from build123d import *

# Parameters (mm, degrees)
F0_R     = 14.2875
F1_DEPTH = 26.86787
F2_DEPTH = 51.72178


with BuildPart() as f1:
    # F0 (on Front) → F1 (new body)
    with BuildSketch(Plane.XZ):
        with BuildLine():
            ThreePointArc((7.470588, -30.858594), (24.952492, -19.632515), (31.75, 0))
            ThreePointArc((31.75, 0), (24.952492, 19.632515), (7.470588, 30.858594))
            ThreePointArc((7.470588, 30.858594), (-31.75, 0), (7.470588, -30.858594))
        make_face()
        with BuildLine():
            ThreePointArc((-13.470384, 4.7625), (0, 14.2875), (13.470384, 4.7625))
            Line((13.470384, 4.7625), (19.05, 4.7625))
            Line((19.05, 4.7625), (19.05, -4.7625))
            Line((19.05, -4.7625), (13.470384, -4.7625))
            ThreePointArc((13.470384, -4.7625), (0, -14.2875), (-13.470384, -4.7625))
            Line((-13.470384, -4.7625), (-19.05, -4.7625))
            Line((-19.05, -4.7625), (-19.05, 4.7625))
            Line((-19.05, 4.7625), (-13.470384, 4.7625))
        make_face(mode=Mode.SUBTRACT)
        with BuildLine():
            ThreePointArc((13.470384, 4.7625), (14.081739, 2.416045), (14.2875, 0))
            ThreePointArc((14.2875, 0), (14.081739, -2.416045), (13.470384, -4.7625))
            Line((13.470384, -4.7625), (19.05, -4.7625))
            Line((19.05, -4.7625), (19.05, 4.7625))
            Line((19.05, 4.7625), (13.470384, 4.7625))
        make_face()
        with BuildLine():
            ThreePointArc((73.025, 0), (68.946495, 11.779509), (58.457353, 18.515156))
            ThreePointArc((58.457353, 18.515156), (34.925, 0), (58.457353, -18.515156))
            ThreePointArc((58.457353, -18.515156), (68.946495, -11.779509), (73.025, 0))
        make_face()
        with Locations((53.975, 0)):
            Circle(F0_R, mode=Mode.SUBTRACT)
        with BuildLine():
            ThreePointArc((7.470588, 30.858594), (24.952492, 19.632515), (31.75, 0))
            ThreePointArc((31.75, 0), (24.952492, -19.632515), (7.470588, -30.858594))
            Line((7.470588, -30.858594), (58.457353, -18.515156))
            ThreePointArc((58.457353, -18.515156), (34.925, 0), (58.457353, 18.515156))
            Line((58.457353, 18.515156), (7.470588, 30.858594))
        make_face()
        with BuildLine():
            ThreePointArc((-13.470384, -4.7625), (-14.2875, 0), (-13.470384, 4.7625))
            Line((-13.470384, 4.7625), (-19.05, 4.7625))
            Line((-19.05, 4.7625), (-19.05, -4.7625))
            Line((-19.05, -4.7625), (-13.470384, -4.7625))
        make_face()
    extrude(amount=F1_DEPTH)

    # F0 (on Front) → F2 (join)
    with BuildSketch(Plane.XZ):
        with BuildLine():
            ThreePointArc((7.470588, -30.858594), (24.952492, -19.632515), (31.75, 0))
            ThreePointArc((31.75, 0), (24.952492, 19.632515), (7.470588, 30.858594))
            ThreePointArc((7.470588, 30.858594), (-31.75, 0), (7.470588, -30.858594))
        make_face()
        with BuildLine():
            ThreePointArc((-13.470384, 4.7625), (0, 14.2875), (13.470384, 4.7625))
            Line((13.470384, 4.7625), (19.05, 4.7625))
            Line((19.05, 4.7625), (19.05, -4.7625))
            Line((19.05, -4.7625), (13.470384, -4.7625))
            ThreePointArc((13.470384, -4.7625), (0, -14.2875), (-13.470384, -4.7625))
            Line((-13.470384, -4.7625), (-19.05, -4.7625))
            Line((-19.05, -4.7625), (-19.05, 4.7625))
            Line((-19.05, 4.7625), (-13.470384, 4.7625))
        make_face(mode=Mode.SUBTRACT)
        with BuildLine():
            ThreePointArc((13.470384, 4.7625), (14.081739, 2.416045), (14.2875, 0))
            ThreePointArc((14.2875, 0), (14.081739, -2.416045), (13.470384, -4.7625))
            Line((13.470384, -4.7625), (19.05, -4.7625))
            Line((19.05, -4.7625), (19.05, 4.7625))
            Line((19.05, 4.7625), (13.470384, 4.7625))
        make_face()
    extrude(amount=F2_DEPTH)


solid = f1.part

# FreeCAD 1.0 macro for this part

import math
import FreeCAD as App
import Part
import Sketcher
from FreeCAD import Vector
Q = App.Units.Quantity

doc = App.newDocument("Part")
body = doc.addObject("PartDesign::Body", "Body")

# Sketch on XZ plane
sketch1 = body.newObject("Sketcher::SketchObject", "Sketch")
sketch1.AttachmentSupport = (doc.getObject("XZ_Plane"), [""])
sketch1.MapMode = "FlatFace"
sketch1.addGeometry([
    Part.ArcOfCircle(Part.Circle(Vector(0, 0, 0), Vector(0, 0, 1), 31.8), math.radians(76), math.radians(284)),  # 0
    Part.LineSegment(Vector(7.5, -30.9, 0), Vector(58.5, -18.5, 0)),  # 1
    Part.ArcOfCircle(Part.Circle(Vector(54, 0, 0), Vector(0, 0, 1), 19), math.radians(-76), math.radians(0)),  # 2
    Part.ArcOfCircle(Part.Circle(Vector(54, 0, 0), Vector(0, 0, 1), 19), math.radians(0), math.radians(76)),  # 3
    Part.LineSegment(Vector(58.5, 18.5, 0), Vector(7.5, 30.9, 0)),  # 4
    Part.ArcOfCircle(Part.Circle(Vector(0, 0, 0), Vector(0, 0, 1), 14.3), math.radians(19), math.radians(161)),  # 5
    Part.ArcOfCircle(Part.Circle(Vector(0, 0, 0), Vector(0, 0, 1), 14.3), math.radians(0), math.radians(19.47)),  # 6
    Part.ArcOfCircle(Part.Circle(Vector(0, 0, 0), Vector(0, 0, 1), 14.3), math.radians(-19.47), math.radians(0)),  # 7
    Part.ArcOfCircle(Part.Circle(Vector(0, 0, 0), Vector(0, 0, 1), 14.3), math.radians(-161), math.radians(-19)),  # 8
    Part.ArcOfCircle(Part.Circle(Vector(0, 0, 0), Vector(0, 0, 1), 14.3), math.radians(161), math.radians(199)),  # 9
    Part.Circle(Vector(54, 0, 0), Vector(0, 0, 1), 14.3),  # 10
], False)
sketch1.addConstraint([
    Sketcher.Constraint("Tangent", 0, 2, 1, 1),
    Sketcher.Constraint("Tangent", 1, 2, 2, 1),
    Sketcher.Constraint("Tangent", 2, 2, 3, 1),
    Sketcher.Constraint("Tangent", 3, 2, 4, 1),
    Sketcher.Constraint("Tangent", 4, 2, 0, 1),
    Sketcher.Constraint("Tangent", 5, 1, 6, 2),
    Sketcher.Constraint("Tangent", 6, 1, 7, 2),
    Sketcher.Constraint("Tangent", 7, 1, 8, 2),
    Sketcher.Constraint("Tangent", 8, 1, 9, 2),
    Sketcher.Constraint("Tangent", 9, 1, 5, 2),
    Sketcher.Constraint("Coincident", 0, 3, -1, 1),
    Sketcher.Constraint("Coincident", 5, 3, -1, 1),
    Sketcher.Constraint("Coincident", 8, 3, -1, 1),
    Sketcher.Constraint("Coincident", 10, 3, 2, 3),
    Sketcher.Constraint("Equal", 2, 3),
    Sketcher.Constraint("Equal", 8, 10),
    Sketcher.Constraint("PointOnObject", 2, 3, -1),
    Sketcher.Constraint("PointOnObject", 2, 2, -1),
    Sketcher.Constraint("PointOnObject", 6, 1, -1),
    Sketcher.Constraint("Horizontal", 7, 1, 8, 1),
    Sketcher.Constraint("Horizontal", 5, 1, 9, 1),
    Sketcher.Constraint("Vertical", 5, 1, 7, 1),
    Sketcher.Constraint("Radius", 0, Q("1.25 in")),
    Sketcher.Constraint("Radius", 2, Q("0.75 in")),
    Sketcher.Constraint("Diameter", 10, Q("1.125 in")),
    Sketcher.Constraint("DistanceX", -1, 1, 2, 3, Q("2.125 in")),
    Sketcher.Constraint("DistanceY", -1, 1, 5, 1, Q("0.1875 in")),
])
pad1 = body.newObject("PartDesign::Pad", "Pad")
pad1.Profile = sketch1
pad1.Length = 26.86787

# Sketch on XZ plane
sketch2 = body.newObject("Sketcher::SketchObject", "Sketch001")
sketch2.AttachmentSupport = (doc.getObject("XZ_Plane"), [""])
sketch2.MapMode = "FlatFace"
sketch2.addGeometry([
    Part.ArcOfCircle(Part.Circle(Vector(0, 0, 0), Vector(0, 0, 1), 31.8), math.radians(-76), math.radians(0)),  # 0
    Part.ArcOfCircle(Part.Circle(Vector(0, 0, 0), Vector(0, 0, 1), 31.8), math.radians(0), math.radians(76)),  # 1
    Part.ArcOfCircle(Part.Circle(Vector(0, 0, 0), Vector(0, 0, 1), 31.8), math.radians(76), math.radians(284)),  # 2
    Part.LineSegment(Vector(-19.1, 4.8, 0), Vector(-13.5, 4.8, 0)),  # 3
    Part.ArcOfCircle(Part.Circle(Vector(0, 0, 0), Vector(0, 0, 1), 14.3), math.radians(19), math.radians(161)),  # 4
    Part.ArcOfCircle(Part.Circle(Vector(0, 0, 0), Vector(0, 0, 1), 14.3), math.radians(0), math.radians(19.47)),  # 5
    Part.ArcOfCircle(Part.Circle(Vector(0, 0, 0), Vector(0, 0, 1), 14.3), math.radians(-19.47), math.radians(0)),  # 6
    Part.ArcOfCircle(Part.Circle(Vector(0, 0, 0), Vector(0, 0, 1), 14.3), math.radians(-161), math.radians(-19)),  # 7
    Part.LineSegment(Vector(-13.5, -4.8, 0), Vector(-19.1, -4.8, 0)),  # 8
    Part.LineSegment(Vector(-19.1, -4.8, 0), Vector(-19.1, 4.8, 0)),  # 9
], False)
sketch2.addConstraint([
    Sketcher.Constraint("Tangent", 0, 2, 1, 1),
    Sketcher.Constraint("Tangent", 1, 2, 2, 1),
    Sketcher.Constraint("Tangent", 2, 2, 0, 1),
    Sketcher.Constraint("Coincident", 3, 2, 4, 2),
    Sketcher.Constraint("Tangent", 4, 1, 5, 2),
    Sketcher.Constraint("Tangent", 5, 1, 6, 2),
    Sketcher.Constraint("Tangent", 6, 1, 7, 2),
    Sketcher.Constraint("Coincident", 7, 1, 8, 1),
    Sketcher.Constraint("Coincident", 8, 2, 9, 1),
    Sketcher.Constraint("Coincident", 9, 2, 3, 1),
    Sketcher.Constraint("Horizontal", 3),
    Sketcher.Constraint("Horizontal", 8),
    Sketcher.Constraint("Vertical", 9),
    Sketcher.Constraint("Coincident", 0, 3, -1, 1),
    Sketcher.Constraint("Coincident", 4, 3, -1, 1),
    Sketcher.Constraint("Coincident", 7, 3, -1, 1),
    Sketcher.Constraint("Equal", 5, 6),
    Sketcher.Constraint("PointOnObject", 0, 2, -1),
    Sketcher.Constraint("PointOnObject", 5, 1, -1),
    Sketcher.Constraint("Horizontal", 3, 2, 4, 1),
    Sketcher.Constraint("Horizontal", 6, 1, 7, 1),
    Sketcher.Constraint("Vertical", 1, 2, 2, 2),
    Sketcher.Constraint("Vertical", 4, 1, 6, 1),
    Sketcher.Constraint("Radius", 0, Q("1.25 in")),
    Sketcher.Constraint("Radius", 4, Q("0.5625 in")),
    Sketcher.Constraint("DistanceY", 9, 1, 9, 2, Q("0.375 in")),
    Sketcher.Constraint("DistanceX", 8, 2, -1, 1, Q("0.75 in")),
    Sketcher.Constraint("DistanceX", -1, 1, 1, 2, 7.470588),
])
pad2 = body.newObject("PartDesign::Pad", "Pad001")
pad2.Profile = sketch2
pad2.Length = 51.72178

doc.recompute()
